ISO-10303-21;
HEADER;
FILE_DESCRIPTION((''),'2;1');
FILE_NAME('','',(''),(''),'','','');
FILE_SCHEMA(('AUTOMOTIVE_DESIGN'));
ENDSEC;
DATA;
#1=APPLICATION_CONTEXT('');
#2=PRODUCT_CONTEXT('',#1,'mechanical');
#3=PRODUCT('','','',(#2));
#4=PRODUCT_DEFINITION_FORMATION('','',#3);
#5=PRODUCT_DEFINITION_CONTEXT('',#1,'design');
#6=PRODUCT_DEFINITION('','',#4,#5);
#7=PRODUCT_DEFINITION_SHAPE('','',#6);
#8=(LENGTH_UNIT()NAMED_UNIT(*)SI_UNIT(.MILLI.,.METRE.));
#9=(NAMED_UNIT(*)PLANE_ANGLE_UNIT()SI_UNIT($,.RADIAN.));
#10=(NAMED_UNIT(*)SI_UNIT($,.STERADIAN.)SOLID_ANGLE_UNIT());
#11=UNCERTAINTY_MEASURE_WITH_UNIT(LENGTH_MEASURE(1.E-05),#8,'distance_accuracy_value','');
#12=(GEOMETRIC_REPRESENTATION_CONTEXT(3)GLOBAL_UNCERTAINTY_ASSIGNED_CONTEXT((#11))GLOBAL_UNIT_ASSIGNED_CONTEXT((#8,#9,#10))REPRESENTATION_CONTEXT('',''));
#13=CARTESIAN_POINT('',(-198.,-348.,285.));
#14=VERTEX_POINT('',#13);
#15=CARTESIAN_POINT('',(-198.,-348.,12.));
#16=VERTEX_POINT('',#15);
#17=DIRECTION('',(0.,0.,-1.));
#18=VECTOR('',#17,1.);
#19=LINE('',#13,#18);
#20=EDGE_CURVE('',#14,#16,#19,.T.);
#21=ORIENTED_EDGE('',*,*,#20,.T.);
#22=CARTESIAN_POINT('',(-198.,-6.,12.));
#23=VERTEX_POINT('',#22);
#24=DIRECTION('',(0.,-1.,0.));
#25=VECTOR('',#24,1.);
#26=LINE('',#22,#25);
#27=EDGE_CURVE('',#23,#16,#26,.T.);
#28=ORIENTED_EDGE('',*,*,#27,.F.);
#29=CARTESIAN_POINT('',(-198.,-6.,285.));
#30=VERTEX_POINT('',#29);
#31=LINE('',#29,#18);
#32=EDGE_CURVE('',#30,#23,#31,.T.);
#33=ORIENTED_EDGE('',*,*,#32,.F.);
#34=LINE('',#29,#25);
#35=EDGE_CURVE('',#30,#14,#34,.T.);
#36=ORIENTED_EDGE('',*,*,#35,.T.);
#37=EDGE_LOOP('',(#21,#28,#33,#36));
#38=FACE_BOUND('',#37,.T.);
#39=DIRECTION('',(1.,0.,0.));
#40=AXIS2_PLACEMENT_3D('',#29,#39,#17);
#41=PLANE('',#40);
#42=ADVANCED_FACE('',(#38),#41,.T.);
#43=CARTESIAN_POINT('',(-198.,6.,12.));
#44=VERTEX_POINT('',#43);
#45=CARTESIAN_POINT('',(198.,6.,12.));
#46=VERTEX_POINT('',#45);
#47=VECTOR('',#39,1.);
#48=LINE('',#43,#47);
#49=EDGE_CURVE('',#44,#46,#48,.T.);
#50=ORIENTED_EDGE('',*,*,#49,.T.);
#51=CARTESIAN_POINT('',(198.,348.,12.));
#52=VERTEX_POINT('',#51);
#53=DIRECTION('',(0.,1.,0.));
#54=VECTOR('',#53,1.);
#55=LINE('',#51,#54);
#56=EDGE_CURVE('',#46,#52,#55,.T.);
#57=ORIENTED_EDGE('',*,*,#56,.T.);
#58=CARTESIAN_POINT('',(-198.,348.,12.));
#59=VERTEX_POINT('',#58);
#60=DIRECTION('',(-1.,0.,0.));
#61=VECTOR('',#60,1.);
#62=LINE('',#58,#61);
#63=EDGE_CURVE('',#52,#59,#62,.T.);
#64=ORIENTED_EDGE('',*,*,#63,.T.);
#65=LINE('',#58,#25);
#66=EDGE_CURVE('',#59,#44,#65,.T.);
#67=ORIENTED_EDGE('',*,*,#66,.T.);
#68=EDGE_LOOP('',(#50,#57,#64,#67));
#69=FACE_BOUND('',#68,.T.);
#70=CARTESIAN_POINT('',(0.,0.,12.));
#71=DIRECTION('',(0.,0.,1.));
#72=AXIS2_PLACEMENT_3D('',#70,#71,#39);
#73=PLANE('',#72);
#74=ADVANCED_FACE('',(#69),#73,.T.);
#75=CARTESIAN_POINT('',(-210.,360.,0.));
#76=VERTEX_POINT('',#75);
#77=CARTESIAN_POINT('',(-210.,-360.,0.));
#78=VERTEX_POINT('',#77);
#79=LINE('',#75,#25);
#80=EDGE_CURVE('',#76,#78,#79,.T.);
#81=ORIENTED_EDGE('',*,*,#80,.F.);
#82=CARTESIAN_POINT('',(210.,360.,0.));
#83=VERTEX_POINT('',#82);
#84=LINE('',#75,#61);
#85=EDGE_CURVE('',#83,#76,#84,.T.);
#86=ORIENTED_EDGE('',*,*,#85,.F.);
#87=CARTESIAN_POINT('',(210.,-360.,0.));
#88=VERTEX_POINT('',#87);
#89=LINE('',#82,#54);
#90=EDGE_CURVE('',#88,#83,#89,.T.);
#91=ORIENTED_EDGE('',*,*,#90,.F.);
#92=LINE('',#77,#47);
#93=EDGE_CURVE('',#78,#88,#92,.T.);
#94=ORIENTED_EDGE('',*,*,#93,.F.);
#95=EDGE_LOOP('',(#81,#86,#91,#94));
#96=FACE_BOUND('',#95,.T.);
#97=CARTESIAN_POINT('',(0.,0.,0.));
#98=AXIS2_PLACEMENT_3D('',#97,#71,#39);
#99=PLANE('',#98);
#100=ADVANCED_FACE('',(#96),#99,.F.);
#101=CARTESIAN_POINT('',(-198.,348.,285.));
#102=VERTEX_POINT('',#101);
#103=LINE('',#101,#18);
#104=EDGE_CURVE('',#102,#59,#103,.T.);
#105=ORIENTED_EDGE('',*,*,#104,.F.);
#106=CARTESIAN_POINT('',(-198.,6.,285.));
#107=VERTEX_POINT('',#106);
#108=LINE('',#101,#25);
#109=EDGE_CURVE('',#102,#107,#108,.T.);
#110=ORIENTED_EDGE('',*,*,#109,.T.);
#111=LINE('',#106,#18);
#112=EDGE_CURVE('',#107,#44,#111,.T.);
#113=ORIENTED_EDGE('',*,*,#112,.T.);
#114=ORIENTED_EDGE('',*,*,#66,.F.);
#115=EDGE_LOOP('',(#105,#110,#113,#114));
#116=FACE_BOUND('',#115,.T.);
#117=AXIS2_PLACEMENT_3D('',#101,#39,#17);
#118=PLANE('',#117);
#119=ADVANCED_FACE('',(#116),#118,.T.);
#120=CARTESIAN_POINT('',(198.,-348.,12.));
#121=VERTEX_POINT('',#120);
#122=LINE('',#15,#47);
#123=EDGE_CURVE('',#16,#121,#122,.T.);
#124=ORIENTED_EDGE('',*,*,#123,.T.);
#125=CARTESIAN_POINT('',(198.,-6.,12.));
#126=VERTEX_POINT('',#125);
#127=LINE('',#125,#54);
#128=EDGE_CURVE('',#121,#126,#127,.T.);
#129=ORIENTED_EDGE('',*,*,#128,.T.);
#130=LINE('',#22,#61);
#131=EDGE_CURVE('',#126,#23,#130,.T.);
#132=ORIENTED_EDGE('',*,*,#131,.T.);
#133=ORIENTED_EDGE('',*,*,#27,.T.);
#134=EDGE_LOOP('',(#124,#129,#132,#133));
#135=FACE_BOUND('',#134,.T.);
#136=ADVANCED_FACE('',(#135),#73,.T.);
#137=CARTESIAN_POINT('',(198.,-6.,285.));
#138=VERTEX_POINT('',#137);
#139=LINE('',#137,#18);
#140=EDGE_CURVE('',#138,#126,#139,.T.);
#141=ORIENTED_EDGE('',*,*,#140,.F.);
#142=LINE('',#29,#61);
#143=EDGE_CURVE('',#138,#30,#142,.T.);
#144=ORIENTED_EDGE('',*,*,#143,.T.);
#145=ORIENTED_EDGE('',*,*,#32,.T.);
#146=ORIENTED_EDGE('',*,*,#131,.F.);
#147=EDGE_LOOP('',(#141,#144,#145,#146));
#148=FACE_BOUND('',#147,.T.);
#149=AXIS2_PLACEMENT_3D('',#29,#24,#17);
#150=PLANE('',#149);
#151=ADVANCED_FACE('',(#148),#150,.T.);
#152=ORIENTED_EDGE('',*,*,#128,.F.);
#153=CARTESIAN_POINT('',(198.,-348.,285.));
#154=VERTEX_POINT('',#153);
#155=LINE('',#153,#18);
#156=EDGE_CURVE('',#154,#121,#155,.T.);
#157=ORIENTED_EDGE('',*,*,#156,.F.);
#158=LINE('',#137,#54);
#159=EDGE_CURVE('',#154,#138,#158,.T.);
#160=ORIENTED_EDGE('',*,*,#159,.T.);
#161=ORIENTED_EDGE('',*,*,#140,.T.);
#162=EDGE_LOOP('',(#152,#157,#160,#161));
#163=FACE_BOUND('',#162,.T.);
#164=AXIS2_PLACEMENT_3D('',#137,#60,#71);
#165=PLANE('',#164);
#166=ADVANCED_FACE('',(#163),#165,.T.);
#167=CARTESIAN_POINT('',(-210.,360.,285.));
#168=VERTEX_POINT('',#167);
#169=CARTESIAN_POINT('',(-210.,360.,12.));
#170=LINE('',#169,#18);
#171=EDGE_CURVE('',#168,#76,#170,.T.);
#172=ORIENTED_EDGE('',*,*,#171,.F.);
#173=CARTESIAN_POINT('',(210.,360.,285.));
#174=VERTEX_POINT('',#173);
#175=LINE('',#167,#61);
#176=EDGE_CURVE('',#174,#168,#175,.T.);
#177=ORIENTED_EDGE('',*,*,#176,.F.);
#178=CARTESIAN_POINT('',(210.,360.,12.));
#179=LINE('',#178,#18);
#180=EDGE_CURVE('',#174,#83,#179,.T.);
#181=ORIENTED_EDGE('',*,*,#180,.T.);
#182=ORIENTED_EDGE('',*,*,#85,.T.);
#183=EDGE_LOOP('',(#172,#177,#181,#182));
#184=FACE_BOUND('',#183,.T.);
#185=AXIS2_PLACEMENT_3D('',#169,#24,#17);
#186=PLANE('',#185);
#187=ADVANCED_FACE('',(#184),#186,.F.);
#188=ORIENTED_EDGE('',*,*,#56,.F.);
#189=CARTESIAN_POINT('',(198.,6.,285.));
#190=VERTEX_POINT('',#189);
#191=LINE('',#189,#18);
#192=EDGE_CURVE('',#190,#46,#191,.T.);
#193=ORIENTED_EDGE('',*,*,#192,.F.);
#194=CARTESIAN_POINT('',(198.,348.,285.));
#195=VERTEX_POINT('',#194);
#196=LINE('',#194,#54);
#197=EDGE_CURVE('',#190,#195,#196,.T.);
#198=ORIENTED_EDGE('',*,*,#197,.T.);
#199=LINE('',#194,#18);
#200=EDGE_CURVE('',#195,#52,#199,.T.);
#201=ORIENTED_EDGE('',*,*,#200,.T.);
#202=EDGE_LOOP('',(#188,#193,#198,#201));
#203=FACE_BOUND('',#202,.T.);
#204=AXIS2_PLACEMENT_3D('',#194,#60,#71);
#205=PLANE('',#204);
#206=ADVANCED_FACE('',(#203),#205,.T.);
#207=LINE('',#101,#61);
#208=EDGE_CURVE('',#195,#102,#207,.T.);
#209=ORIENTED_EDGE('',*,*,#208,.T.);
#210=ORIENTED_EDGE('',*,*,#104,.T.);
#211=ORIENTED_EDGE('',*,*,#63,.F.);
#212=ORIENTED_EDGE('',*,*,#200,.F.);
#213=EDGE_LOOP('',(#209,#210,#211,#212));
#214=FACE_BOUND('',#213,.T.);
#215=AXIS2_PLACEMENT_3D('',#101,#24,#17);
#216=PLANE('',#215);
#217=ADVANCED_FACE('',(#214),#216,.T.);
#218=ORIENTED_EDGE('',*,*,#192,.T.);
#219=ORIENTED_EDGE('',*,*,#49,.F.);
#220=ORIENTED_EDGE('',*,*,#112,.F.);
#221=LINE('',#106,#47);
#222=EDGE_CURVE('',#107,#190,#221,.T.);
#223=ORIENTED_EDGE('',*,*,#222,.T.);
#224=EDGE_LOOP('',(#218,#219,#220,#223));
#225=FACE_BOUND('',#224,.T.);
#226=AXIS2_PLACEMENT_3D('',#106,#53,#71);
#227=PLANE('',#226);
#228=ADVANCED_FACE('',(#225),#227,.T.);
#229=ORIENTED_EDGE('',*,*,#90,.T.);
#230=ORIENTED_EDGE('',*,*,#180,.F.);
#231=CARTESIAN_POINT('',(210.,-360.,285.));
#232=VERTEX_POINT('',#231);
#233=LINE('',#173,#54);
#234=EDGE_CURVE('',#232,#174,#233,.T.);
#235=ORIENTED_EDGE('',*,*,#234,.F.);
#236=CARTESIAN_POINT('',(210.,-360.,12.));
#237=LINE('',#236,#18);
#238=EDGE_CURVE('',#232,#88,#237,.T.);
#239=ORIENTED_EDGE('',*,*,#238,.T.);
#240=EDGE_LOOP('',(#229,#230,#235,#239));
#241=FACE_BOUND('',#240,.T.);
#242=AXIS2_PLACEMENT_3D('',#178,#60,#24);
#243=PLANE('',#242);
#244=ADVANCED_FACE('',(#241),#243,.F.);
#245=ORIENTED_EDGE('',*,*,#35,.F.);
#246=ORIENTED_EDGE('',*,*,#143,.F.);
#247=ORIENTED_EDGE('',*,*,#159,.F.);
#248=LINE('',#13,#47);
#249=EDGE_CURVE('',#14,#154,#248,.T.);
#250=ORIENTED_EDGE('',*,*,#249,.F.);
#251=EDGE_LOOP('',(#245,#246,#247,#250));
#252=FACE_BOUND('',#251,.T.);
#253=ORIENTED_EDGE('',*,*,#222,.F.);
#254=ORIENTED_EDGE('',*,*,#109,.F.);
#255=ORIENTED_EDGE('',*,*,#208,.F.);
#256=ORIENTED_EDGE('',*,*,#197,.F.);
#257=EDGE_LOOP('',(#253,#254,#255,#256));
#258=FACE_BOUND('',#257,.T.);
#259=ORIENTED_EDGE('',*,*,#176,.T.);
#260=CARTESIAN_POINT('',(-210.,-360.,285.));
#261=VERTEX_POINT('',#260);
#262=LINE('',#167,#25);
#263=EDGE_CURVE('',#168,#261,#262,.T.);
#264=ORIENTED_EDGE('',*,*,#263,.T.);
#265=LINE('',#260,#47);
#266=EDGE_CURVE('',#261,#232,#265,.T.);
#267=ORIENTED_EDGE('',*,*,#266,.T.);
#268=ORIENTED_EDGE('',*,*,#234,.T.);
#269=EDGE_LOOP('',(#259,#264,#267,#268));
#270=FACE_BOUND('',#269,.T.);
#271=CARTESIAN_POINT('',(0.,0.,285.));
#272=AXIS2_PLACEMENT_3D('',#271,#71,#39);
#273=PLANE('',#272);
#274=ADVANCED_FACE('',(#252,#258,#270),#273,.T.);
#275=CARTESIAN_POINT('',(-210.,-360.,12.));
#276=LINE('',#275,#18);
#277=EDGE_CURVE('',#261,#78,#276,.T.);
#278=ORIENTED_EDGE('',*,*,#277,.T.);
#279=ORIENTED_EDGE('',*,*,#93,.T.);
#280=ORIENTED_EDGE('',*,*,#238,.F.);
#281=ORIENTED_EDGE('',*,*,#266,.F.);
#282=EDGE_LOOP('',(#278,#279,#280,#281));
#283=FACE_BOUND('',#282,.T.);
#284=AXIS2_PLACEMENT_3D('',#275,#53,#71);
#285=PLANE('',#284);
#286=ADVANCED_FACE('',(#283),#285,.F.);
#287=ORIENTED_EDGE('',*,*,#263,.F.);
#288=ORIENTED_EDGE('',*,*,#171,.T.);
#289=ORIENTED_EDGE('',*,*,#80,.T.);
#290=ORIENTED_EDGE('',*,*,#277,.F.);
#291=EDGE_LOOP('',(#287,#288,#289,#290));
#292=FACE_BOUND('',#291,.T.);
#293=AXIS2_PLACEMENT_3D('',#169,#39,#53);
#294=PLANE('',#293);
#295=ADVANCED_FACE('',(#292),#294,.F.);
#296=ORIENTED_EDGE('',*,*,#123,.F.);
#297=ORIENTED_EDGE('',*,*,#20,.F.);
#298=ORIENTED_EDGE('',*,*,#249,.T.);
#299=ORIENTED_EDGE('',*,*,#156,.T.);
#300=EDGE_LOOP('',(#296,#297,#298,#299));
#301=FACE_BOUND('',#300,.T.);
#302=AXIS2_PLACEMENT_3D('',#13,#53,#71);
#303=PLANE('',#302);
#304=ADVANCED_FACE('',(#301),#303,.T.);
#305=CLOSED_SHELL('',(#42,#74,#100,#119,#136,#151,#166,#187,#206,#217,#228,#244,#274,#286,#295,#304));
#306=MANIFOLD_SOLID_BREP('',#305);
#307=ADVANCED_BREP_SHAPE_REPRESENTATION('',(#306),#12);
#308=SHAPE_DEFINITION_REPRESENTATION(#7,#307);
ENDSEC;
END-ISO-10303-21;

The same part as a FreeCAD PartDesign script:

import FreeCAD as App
import Part
import Sketcher
from FreeCAD import Vector
Q = App.Units.Quantity

doc = App.newDocument("Part")
body = doc.addObject("PartDesign::Body", "Body")

sketch1 = doc.addObject("Sketcher::SketchObject", "Sketch")
body.addObject(sketch1)
sketch1.AttachmentSupport = (doc.XY_Plane, [""])
sketch1.MapMode = "FlatFace"
sketch1.addGeometry([
    Part.LineSegment(Vector(-210, 360, 0), Vector(-210, -360, 0)),
    Part.LineSegment(Vector(-210, -360, 0), Vector(210, -360, 0)),
    Part.LineSegment(Vector(210, -360, 0), Vector(210, 360, 0)),
    Part.LineSegment(Vector(210, 360, 0), Vector(-210, 360, 0)),
], False)
sketch1.addConstraint([
    Sketcher.Constraint("Coincident", 0, 2, 1, 1),
    Sketcher.Constraint("Coincident", 1, 2, 2, 1),
    Sketcher.Constraint("Coincident", 2, 2, 3, 1),
    Sketcher.Constraint("Coincident", 3, 2, 0, 1),
    Sketcher.Constraint("Vertical", 0),
    Sketcher.Constraint("Horizontal", 1),
    Sketcher.Constraint("Vertical", 2),
    Sketcher.Constraint("Horizontal", 3),
    Sketcher.Constraint("Symmetric", 0, 2, 2, 2, -1, 1),
    Sketcher.Constraint("DistanceX", 1, 1, 1, 2, Q("420 mm")),
    Sketcher.Constraint("DistanceY", 0, 2, 0, 1, Q("720 mm")),
])
pad1 = doc.addObject("PartDesign::Pad", "Pad")
body.addObject(pad1)
pad1.Profile = sketch1
pad1.Length = 12

sketch2 = doc.addObject("Sketcher::SketchObject", "Sketch001")
body.addObject(sketch2)
sketch2.AttachmentSupport = (doc.XY_Plane, [""])
sketch2.MapMode = "FlatFace"
sketch2.AttachmentOffset = App.Placement(Vector(0, 0, 12), App.Rotation())
sketch2.addGeometry([
    Part.LineSegment(Vector(-210, 360, 0), Vector(-210, -360, 0)),
    Part.LineSegment(Vector(-210, -360, 0), Vector(210, -360, 0)),
    Part.LineSegment(Vector(210, -360, 0), Vector(210, 360, 0)),
    Part.LineSegment(Vector(210, 360, 0), Vector(-210, 360, 0)),
    Part.LineSegment(Vector(198, -348, 0), Vector(-198, -348, 0)),
    Part.LineSegment(Vector(-198, -348, 0), Vector(-198, -6, 0)),
    Part.LineSegment(Vector(-198, -6, 0), Vector(198, -6, 0)),
    Part.LineSegment(Vector(198, -6, 0), Vector(198, -348, 0)),
    Part.LineSegment(Vector(198, 6, 0), Vector(-198, 6, 0)),
    Part.LineSegment(Vector(-198, 6, 0), Vector(-198, 348, 0)),
    Part.LineSegment(Vector(-198, 348, 0), Vector(198, 348, 0)),
    Part.LineSegment(Vector(198, 348, 0), Vector(198, 6, 0)),
], False)
sketch2.addConstraint([
    Sketcher.Constraint("Coincident", 0, 2, 1, 1),
    Sketcher.Constraint("Coincident", 1, 2, 2, 1),
    Sketcher.Constraint("Coincident", 2, 2, 3, 1),
    Sketcher.Constraint("Coincident", 3, 2, 0, 1),
    Sketcher.Constraint("Coincident", 4, 2, 5, 1),
    Sketcher.Constraint("Coincident", 5, 2, 6, 1),
    Sketcher.Constraint("Coincident", 6, 2, 7, 1),
    Sketcher.Constraint("Coincident", 7, 2, 4, 1),
    Sketcher.Constraint("Coincident", 8, 2, 9, 1),
    Sketcher.Constraint("Coincident", 9, 2, 10, 1),
    Sketcher.Constraint("Coincident", 10, 2, 11, 1),
    Sketcher.Constraint("Coincident", 11, 2, 8, 1),
    Sketcher.Constraint("Vertical", 0),
    Sketcher.Constraint("Horizontal", 1),
    Sketcher.Constraint("Vertical", 2),
    Sketcher.Constraint("Horizontal", 3),
    Sketcher.Constraint("Horizontal", 4),
    Sketcher.Constraint("Vertical", 5),
    Sketcher.Constraint("Horizontal", 6),
    Sketcher.Constraint("Vertical", 7),
    Sketcher.Constraint("Horizontal", 8),
    Sketcher.Constraint("Vertical", 9),
    Sketcher.Constraint("Horizontal", 10),
    Sketcher.Constraint("Vertical", 11),
    Sketcher.Constraint("Symmetric", 0, 2, 2, 2, -1, 1),
    Sketcher.Constraint("Symmetric", 6, 2, 8, 2, -1, 1),
    Sketcher.Constraint("Symmetric", 4, 2, 10, 2, -1, 1),
    Sketcher.Constraint("Vertical", 5, 2, 8, 2),
    Sketcher.Constraint("DistanceX", 1, 1, 1, 2, Q("420 mm")),
    Sketcher.Constraint("DistanceX", 4, 2, 4, 1, Q("396 mm")),
    Sketcher.Constraint("DistanceY", 0, 2, 0, 1, Q("720 mm")),
    Sketcher.Constraint("DistanceY", 5, 1, 5, 2, Q("342 mm")),
    Sketcher.Constraint("DistanceY", 4, 2, -1, 1, Q("348 mm")),
])
pad2 = doc.addObject("PartDesign::Pad", "Pad001")
body.addObject(pad2)
pad2.Profile = sketch2
pad2.Length = 273

doc.recompute()
